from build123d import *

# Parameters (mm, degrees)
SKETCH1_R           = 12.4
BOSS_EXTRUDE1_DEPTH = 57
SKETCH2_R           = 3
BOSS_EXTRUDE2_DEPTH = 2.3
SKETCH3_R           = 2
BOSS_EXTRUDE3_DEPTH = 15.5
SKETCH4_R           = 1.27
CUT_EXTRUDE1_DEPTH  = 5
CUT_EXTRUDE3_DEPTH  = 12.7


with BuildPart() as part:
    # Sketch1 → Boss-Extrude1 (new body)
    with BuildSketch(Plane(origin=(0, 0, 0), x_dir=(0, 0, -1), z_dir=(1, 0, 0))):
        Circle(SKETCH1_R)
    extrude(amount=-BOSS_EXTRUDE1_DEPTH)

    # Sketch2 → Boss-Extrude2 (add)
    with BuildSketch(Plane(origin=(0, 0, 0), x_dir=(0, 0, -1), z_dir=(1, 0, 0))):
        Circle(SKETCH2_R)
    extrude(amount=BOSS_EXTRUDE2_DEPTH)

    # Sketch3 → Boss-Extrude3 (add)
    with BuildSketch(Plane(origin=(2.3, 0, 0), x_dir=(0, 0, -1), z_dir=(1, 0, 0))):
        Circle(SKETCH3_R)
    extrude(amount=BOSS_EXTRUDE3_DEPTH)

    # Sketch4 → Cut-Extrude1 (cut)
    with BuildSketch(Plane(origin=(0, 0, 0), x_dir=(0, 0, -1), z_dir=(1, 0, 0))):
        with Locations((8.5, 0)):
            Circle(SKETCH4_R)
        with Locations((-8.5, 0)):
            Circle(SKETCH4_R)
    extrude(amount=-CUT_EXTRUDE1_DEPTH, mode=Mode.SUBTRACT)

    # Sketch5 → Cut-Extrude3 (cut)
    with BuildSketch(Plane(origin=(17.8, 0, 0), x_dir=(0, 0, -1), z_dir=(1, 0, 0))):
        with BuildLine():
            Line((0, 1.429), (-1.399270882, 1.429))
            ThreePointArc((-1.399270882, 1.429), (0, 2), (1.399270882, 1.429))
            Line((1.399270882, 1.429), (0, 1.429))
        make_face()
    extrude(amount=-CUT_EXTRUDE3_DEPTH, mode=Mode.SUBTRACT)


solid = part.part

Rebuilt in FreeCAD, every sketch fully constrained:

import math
import FreeCAD as App
import Part
import Sketcher
from FreeCAD import Vector
Q = App.Units.Quantity

doc = App.newDocument("Part")
params = doc.addObject("Spreadsheet::Sheet", "Params")
for row, (alias, value) in enumerate([
    ("sketch1_diameter", "24.8 mm"),
    ("pad1_length", "57 mm"),
    ("sketch2_diameter", "6 mm"),
    ("pad2_length", "2.3 mm"),
    ("sketch3_diameter", "4 mm"),
    ("pad3_length", "15.5 mm"),
    ("sketch4_diameter", "2.54 mm"),
    ("pocket1_length", "5 mm"),
    ("sketch5_radius", "2 mm"),
    ("pocket2_length", "12.7 mm"),
], start=1):
    params.set(f"A{row}", alias)
    params.set(f"B{row}", "=" + value)
    params.setAlias(f"B{row}", alias)

body = doc.addObject("PartDesign::Body", "Body")

# Sketch on YZ plane
sketch1 = body.newObject("Sketcher::SketchObject", "Sketch")
sketch1.AttachmentSupport = (doc.getObject("YZ_Plane"), [""])
sketch1.MapMode = "FlatFace"
sketch1.addGeometry(Part.Circle(Vector(0, 0, 0), Vector(0, 0, 1), 12), False)
sketch1.addConstraint(Sketcher.Constraint("Coincident", 0, 3, -1, 1))
sketch1.addConstraint(Sketcher.Constraint("Diameter", 0, Q("24.8 mm")))
sketch1.setExpression("Constraints[1]", "Params.sketch1_diameter")
pad1 = body.newObject("PartDesign::Pad", "Pad")
pad1.Profile = sketch1
pad1.setExpression("Length", "Params.pad1_length")
pad1.Reversed = True

# Sketch on YZ plane
sketch2 = body.newObject("Sketcher::SketchObject", "Sketch001")
sketch2.AttachmentSupport = (doc.getObject("YZ_Plane"), [""])
sketch2.MapMode = "FlatFace"
sketch2.addGeometry(Part.Circle(Vector(0, 0, 0), Vector(0, 0, 1), 3), False)
sketch2.addConstraint(Sketcher.Constraint("Coincident", 0, 3, -1, 1))
sketch2.addConstraint(Sketcher.Constraint("Diameter", 0, Q("6 mm")))
sketch2.setExpression("Constraints[1]", "Params.sketch2_diameter")
pad2 = body.newObject("PartDesign::Pad", "Pad001")
pad2.Profile = sketch2
pad2.setExpression("Length", "Params.pad2_length")

# Sketch on YZ plane
sketch3 = body.newObject("Sketcher::SketchObject", "Sketch002")
sketch3.AttachmentSupport = (doc.getObject("YZ_Plane"), [""])
sketch3.MapMode = "FlatFace"
sketch3.AttachmentOffset = App.Placement(Vector(0, 0, 2.3), App.Rotation())
sketch3.addGeometry(Part.Circle(Vector(0, 0, 0), Vector(0, 0, 1), 2), False)
sketch3.addConstraint(Sketcher.Constraint("Coincident", 0, 3, -1, 1))
sketch3.addConstraint(Sketcher.Constraint("Diameter", 0, Q("4 mm")))
sketch3.setExpression("Constraints[1]", "Params.sketch3_diameter")
pad3 = body.newObject("PartDesign::Pad", "Pad002")
pad3.Profile = sketch3
pad3.setExpression("Length", "Params.pad3_length")

# Sketch on YZ plane
sketch4 = body.newObject("Sketcher::SketchObject", "Sketch003")
sketch4.AttachmentSupport = (doc.getObject("YZ_Plane"), [""])
sketch4.MapMode = "FlatFace"
sketch4.addGeometry(Part.Circle(Vector(0, -8.5, 0), Vector(0, 0, 1), 1.3), False)
sketch4.addGeometry(Part.Circle(Vector(0, 8.5, 0), Vector(0, 0, 1), 1.3), False)
sketch4.addConstraint(Sketcher.Constraint("Equal", 0, 1))
sketch4.addConstraint(Sketcher.Constraint("Symmetric", 0, 3, 1, 3, -1, 1))
sketch4.addConstraint(Sketcher.Constraint("PointOnObject", 0, 3, -2))
sketch4.addConstraint(Sketcher.Constraint("Diameter", 0, Q("2.54 mm")))
sketch4.addConstraint(Sketcher.Constraint("DistanceY", 0, 3, 1, 3, Q("17 mm")))
sketch4.setExpression("Constraints[3]", "Params.sketch4_diameter")
pocket1 = body.newObject("PartDesign::Pocket", "Pocket")
pocket1.Profile = sketch4
pocket1.setExpression("Length", "Params.pocket1_length")

# Sketch on YZ plane
sketch5 = body.newObject("Sketcher::SketchObject", "Sketch004")
sketch5.AttachmentSupport = (doc.getObject("YZ_Plane"), [""])
sketch5.MapMode = "FlatFace"
sketch5.AttachmentOffset = App.Placement(Vector(0, 0, 17.8), App.Rotation())
sketch5.addGeometry(Part.ArcOfCircle(Part.Circle(Vector(0, 0, 0), Vector(0, 0, 1), 2), math.radians(-44), math.radians(44)), False)
sketch5.addGeometry(Part.LineSegment(Vector(1.4, 1.4, 0), Vector(1.4, -1.4, 0)), False)
sketch5.addConstraint(Sketcher.Constraint("Coincident", 0, 1, 1, 2))
sketch5.addConstraint(Sketcher.Constraint("Coincident", 1, 1, 0, 2))
sketch5.addConstraint(Sketcher.Constraint("Vertical", 1))
sketch5.addConstraint(Sketcher.Constraint("Coincident", 0, 3, -1, 1))
sketch5.addConstraint(Sketcher.Constraint("Radius", 0, Q("2 mm")))
sketch5.addConstraint(Sketcher.Constraint("DistanceX", -1, 1, 0, 1, Q("1.429 mm")))
sketch5.setExpression("Constraints[4]", "Params.sketch5_radius")
pocket2 = body.newObject("PartDesign::Pocket", "Pocket001")
pocket2.Profile = sketch5
pocket2.setExpression("Length", "Params.pocket2_length")

doc.recompute()
